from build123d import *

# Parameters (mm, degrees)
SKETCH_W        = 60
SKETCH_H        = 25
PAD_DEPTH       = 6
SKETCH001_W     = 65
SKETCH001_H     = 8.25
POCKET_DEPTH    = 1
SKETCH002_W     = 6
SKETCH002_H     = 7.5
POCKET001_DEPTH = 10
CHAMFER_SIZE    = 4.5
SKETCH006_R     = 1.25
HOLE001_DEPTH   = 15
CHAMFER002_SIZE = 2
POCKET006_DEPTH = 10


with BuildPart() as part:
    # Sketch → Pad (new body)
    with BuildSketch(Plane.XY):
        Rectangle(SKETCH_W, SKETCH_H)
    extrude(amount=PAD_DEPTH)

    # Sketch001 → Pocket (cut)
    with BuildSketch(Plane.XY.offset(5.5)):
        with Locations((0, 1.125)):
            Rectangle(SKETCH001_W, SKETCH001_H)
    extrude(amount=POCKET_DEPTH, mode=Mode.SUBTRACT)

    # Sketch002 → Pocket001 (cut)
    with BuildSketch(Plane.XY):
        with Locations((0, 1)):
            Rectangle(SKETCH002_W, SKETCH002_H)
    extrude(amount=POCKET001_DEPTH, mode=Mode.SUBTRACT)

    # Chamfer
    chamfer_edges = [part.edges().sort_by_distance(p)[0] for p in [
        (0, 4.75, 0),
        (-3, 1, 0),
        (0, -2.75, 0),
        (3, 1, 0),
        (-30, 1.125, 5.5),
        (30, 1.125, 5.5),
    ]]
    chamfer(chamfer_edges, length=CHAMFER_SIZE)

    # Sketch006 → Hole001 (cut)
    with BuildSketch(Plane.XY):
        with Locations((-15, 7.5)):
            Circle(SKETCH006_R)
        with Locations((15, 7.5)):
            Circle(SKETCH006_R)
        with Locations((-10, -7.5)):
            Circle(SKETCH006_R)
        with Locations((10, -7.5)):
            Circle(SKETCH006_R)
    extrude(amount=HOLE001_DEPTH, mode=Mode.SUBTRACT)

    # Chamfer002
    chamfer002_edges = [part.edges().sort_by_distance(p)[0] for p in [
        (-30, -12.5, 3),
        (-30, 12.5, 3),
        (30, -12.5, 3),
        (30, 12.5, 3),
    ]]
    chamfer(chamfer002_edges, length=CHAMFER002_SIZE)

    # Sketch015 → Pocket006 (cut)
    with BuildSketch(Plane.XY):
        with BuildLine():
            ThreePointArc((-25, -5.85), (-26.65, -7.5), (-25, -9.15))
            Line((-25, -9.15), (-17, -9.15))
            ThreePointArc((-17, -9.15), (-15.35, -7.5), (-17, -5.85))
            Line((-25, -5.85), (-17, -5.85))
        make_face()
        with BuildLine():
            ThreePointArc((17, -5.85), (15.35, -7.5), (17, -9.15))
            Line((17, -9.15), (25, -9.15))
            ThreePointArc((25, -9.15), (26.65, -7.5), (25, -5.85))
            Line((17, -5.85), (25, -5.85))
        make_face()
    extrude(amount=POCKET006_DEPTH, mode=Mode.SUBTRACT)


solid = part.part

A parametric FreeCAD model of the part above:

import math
import FreeCAD as App
import Part
import Sketcher
from FreeCAD import Vector
Q = App.Units.Quantity


def edges_at(feature, points):
    """Names of the edges that pass closest to the given points."""
    edges = feature.Shape.Edges
    near = lambda p: min(range(len(edges)), key=lambda i: edges[i].distToShape(Part.Vertex(*p))[0])
    return sorted({f"Edge{near(p) + 1}" for p in points})


def add_polygon(sketch, points):
    """Adds a closed chain of lines whose ends are joined by coincident constraints."""
    first, n = sketch.GeometryCount, len(points)
    for a, b in zip(points, points[1:] + points[:1]):
        sketch.addGeometry(Part.LineSegment(App.Vector(*a, 0), App.Vector(*b, 0)), False)
    for i in range(n):
        sketch.addConstraint(Sketcher.Constraint("Coincident", first + i, 2, first + (i + 1) % n, 1))

doc = App.newDocument("Part")
body = doc.addObject("PartDesign::Body", "Body")

sketch1 = body.newObject("Sketcher::SketchObject", "Sketch")
sketch1.AttachmentSupport = (doc.getObject("XY_Plane"), [""])
sketch1.MapMode = "FlatFace"
add_polygon(sketch1, [(-30, 12), (-30, -12), (30, -12), (30, 12)])
sketch1.addConstraint(Sketcher.Constraint("Vertical", 0))
sketch1.addConstraint(Sketcher.Constraint("Horizontal", 1))
sketch1.addConstraint(Sketcher.Constraint("Vertical", 2))
sketch1.addConstraint(Sketcher.Constraint("Horizontal", 3))
sketch1.addConstraint(Sketcher.Constraint("Symmetric", 0, 2, 2, 2, -1, 1))
sketch1.addConstraint(Sketcher.Constraint("DistanceX", 1, 1, 1, 2, Q("60 mm")))
sketch1.addConstraint(Sketcher.Constraint("DistanceY", 0, 2, 0, 1, Q("25 mm")))
pad1 = body.newObject("PartDesign::Pad", "Pad")
pad1.Profile = sketch1
pad1.Length = 6

sketch2 = body.newObject("Sketcher::SketchObject", "Sketch001")
sketch2.AttachmentSupport = (doc.getObject("XY_Plane"), [""])
sketch2.MapMode = "FlatFace"
sketch2.AttachmentOffset = App.Placement(Vector(0, 0, 5.5), App.Rotation())
add_polygon(sketch2, [(-32, 5), (-32, -3), (32, -3), (32, 5)])
sketch2.addConstraint(Sketcher.Constraint("Vertical", 0))
sketch2.addConstraint(Sketcher.Constraint("Horizontal", 1))
sketch2.addConstraint(Sketcher.Constraint("Vertical", 2))
sketch2.addConstraint(Sketcher.Constraint("Horizontal", 3))
sketch2.addConstraint(Sketcher.Constraint("DistanceX", 1, 1, 1, 2, Q("65 mm")))
sketch2.addConstraint(Sketcher.Constraint("DistanceY", 0, 2, -1, 1, Q("3 mm")))
sketch2.addConstraint(Sketcher.Constraint("DistanceY", 0, 2, 0, 1, Q("8.25 mm")))
sketch2.addConstraint(Sketcher.Constraint("DistanceX", 0, 2, -1, 1, Q("32.5 mm")))
pocket1 = body.newObject("PartDesign::Pocket", "Pocket")
pocket1.Profile = sketch2
pocket1.Length = 1
pocket1.Reversed = True

sketch3 = body.newObject("Sketcher::SketchObject", "Sketch002")
sketch3.AttachmentSupport = (doc.getObject("XY_Plane"), [""])
sketch3.MapMode = "FlatFace"
add_polygon(sketch3, [(-3, 5), (-3, -3), (3, -3), (3, 5)])
sketch3.addConstraint(Sketcher.Constraint("Vertical", 0))
sketch3.addConstraint(Sketcher.Constraint("Horizontal", 1))
sketch3.addConstraint(Sketcher.Constraint("Vertical", 2))
sketch3.addConstraint(Sketcher.Constraint("Horizontal", 3))
sketch3.addConstraint(Sketcher.Constraint("DistanceX", 1, 1, 1, 2, Q("6 mm")))
sketch3.addConstraint(Sketcher.Constraint("DistanceY", 0, 2, 0, 1, Q("7.5 mm")))
sketch3.addConstraint(Sketcher.Constraint("DistanceX", 0, 2, -1, 1, Q("3 mm")))
sketch3.addConstraint(Sketcher.Constraint("DistanceY", 0, 2, -1, 1, Q("2.75 mm")))
pocket2 = body.newObject("PartDesign::Pocket", "Pocket001")
pocket2.Profile = sketch3
pocket2.Length = 10
pocket2.Reversed = True
doc.recompute()

chamfer = body.newObject("PartDesign::Chamfer", "Chamfer")
chamfer.Base = (pocket2, edges_at(pocket2, [
    (0, 4.75, 0),
    (-3, 1, 0),
    (0, -2.75, 0),
    (3, 1, 0),
    (-30, 1.125, 5.5),
    (30, 1.125, 5.5),
]))
chamfer.Size = 4.5

sketch4 = body.newObject("Sketcher::SketchObject", "Sketch003")
sketch4.AttachmentSupport = (doc.getObject("XY_Plane"), [""])
sketch4.MapMode = "FlatFace"
sketch4.addGeometry(Part.Circle(Vector(-15, 7.5, 0), Vector(0, 0, 1), 1.2), False)
sketch4.addGeometry(Part.Circle(Vector(15, 7.5, 0), Vector(0, 0, 1), 1.2), False)
sketch4.addGeometry(Part.Circle(Vector(-10, -7.5, 0), Vector(0, 0, 1), 1.2), False)
sketch4.addGeometry(Part.Circle(Vector(10, -7.5, 0), Vector(0, 0, 1), 1.2), False)
sketch4.addConstraint(Sketcher.Constraint("Equal", 0, 1))
sketch4.addConstraint(Sketcher.Constraint("Equal", 1, 2))
sketch4.addConstraint(Sketcher.Constraint("Equal", 2, 3))
sketch4.addConstraint(Sketcher.Constraint("Symmetric", 0, 3, 1, 3, -2))
sketch4.addConstraint(Sketcher.Constraint("Symmetric", 2, 3, 3, 3, -2))
sketch4.addConstraint(Sketcher.Constraint("Diameter", 0, Q("2.5 mm")))
sketch4.addConstraint(Sketcher.Constraint("DistanceX", 0, 3, -1, 1, Q("15 mm")))
sketch4.addConstraint(Sketcher.Constraint("DistanceX", 2, 3, -1, 1, Q("10 mm")))
sketch4.addConstraint(Sketcher.Constraint("DistanceY", 2, 3, 0, 3, Q("15 mm")))
sketch4.addConstraint(Sketcher.Constraint("DistanceY", -1, 1, 0, 3, Q("7.5 mm")))
pocket3 = body.newObject("PartDesign::Pocket", "Pocket002")
pocket3.Profile = sketch4
pocket3.Length = 15
pocket3.Reversed = True
doc.recompute()

chamfer2 = body.newObject("PartDesign::Chamfer", "Chamfer001")
chamfer2.Base = (pocket3, edges_at(pocket3, [
    (-30, -12.5, 3),
    (-30, 12.5, 3),
    (30, -12.5, 3),
    (30, 12.5, 3),
]))
chamfer2.Size = 2

sketch5 = body.newObject("Sketcher::SketchObject", "Sketch004")
sketch5.AttachmentSupport = (doc.getObject("XY_Plane"), [""])
sketch5.MapMode = "FlatFace"
sketch5.addGeometry(Part.ArcOfCircle(Part.Circle(Vector(-25, -7.5, 0), Vector(0, 0, 1), 1.6), math.radians(90), math.radians(270)), False)
sketch5.addGeometry(Part.LineSegment(Vector(-25, -9.2, 0), Vector(-17, -9.2, 0)), False)
sketch5.addGeometry(Part.ArcOfCircle(Part.Circle(Vector(-17, -7.5, 0), Vector(0, 0, 1), 1.6), math.radians(-90), math.radians(90)), False)
sketch5.addGeometry(Part.LineSegment(Vector(-17, -5.8, 0), Vector(-25, -5.8, 0)), False)
sketch5.addGeometry(Part.ArcOfCircle(Part.Circle(Vector(17, -7.5, 0), Vector(0, 0, 1), 1.6), math.radians(90), math.radians(270)), False)
sketch5.addGeometry(Part.LineSegment(Vector(17, -9.2, 0), Vector(25, -9.2, 0)), False)
sketch5.addGeometry(Part.ArcOfCircle(Part.Circle(Vector(25, -7.5, 0), Vector(0, 0, 1), 1.6), math.radians(-90), math.radians(90)), False)
sketch5.addGeometry(Part.LineSegment(Vector(25, -5.8, 0), Vector(17, -5.8, 0)), False)
sketch5.addConstraint(Sketcher.Constraint("Tangent", 0, 2, 1, 1))
sketch5.addConstraint(Sketcher.Constraint("Tangent", 1, 2, 2, 1))
sketch5.addConstraint(Sketcher.Constraint("Tangent", 2, 2, 3, 1))
sketch5.addConstraint(Sketcher.Constraint("Tangent", 3, 2, 0, 1))
sketch5.addConstraint(Sketcher.Constraint("Tangent", 4, 2, 5, 1))
sketch5.addConstraint(Sketcher.Constraint("Tangent", 5, 2, 6, 1))
sketch5.addConstraint(Sketcher.Constraint("Tangent", 6, 2, 7, 1))
sketch5.addConstraint(Sketcher.Constraint("Tangent", 7, 2, 4, 1))
sketch5.addConstraint(Sketcher.Constraint("Horizontal", 1))
sketch5.addConstraint(Sketcher.Constraint("Horizontal", 3))
sketch5.addConstraint(Sketcher.Constraint("Horizontal", 5))
sketch5.addConstraint(Sketcher.Constraint("Horizontal", 7))
sketch5.addConstraint(Sketcher.Constraint("Equal", 2, 4))
sketch5.addConstraint(Sketcher.Constraint("Symmetric", 2, 3, 4, 3, -2))
sketch5.addConstraint(Sketcher.Constraint("Equal", 3, 5))
sketch5.addConstraint(Sketcher.Constraint("DistanceX", 1, 1, 1, 2, Q("8 mm")))
sketch5.addConstraint(Sketcher.Constraint("Radius", 0, Q("1.65 mm")))
sketch5.addConstraint(Sketcher.Constraint("DistanceX", 0, 3, -1, 1, Q("25 mm")))
sketch5.addConstraint(Sketcher.Constraint("DistanceY", 0, 3, -1, 1, Q("7.5 mm")))
pocket4 = body.newObject("PartDesign::Pocket", "Pocket003")
pocket4.Profile = sketch5
pocket4.Length = 10
pocket4.Reversed = True

doc.recompute()
